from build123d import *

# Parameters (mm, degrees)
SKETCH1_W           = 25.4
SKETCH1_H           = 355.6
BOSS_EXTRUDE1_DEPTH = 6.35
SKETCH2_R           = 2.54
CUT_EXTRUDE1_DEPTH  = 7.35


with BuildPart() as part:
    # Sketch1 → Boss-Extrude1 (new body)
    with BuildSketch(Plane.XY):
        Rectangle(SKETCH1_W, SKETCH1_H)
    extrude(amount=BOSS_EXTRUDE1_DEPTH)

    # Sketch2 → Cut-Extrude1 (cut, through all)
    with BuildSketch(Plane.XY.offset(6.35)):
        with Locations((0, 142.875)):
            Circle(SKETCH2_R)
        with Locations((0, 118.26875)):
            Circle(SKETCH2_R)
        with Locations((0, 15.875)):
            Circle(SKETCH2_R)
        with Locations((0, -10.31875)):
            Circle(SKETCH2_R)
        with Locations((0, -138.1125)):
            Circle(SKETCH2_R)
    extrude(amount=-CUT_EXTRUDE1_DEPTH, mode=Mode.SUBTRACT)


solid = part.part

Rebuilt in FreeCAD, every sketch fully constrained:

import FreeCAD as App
import Part
import Sketcher
Q = App.Units.Quantity

doc = App.newDocument("Part")
params = doc.addObject("Spreadsheet::Sheet", "Params")
for row, (alias, value) in enumerate([
    ("sketch1_width", "1 in"),
    ("sketch1_height", "14 in"),
    ("pad1_length", "0.25 in"),
    ("sketch2_diameter", "0.2 in"),
], start=1):
    params.set(f"A{row}", alias)
    params.set(f"B{row}", "=" + value)
    params.setAlias(f"B{row}", alias)

body = doc.addObject("PartDesign::Body", "Body")

# Sketch on XY plane
sketch1 = body.newObject("Sketcher::SketchObject", "Sketch")
sketch1.AttachmentSupport = (doc.getObject("XY_Plane"), [""])
sketch1.MapMode = "FlatFace"
sketch1.addGeometry([
    Part.LineSegment(App.Vector(-13, 178, 0), App.Vector(-13, -178, 0)),
    Part.LineSegment(App.Vector(-13, -178, 0), App.Vector(13, -178, 0)),
    Part.LineSegment(App.Vector(13, -178, 0), App.Vector(13, 178, 0)),
    Part.LineSegment(App.Vector(13, 178, 0), App.Vector(-13, 178, 0)),
], False)
sketch1.addConstraint([
    Sketcher.Constraint("Coincident", 0, 2, 1, 1),
    Sketcher.Constraint("Coincident", 1, 2, 2, 1),
    Sketcher.Constraint("Coincident", 2, 2, 3, 1),
    Sketcher.Constraint("Coincident", 3, 2, 0, 1),
    Sketcher.Constraint("Vertical", 0),
    Sketcher.Constraint("Horizontal", 1),
    Sketcher.Constraint("Vertical", 2),
    Sketcher.Constraint("Horizontal", 3),
    Sketcher.Constraint("Symmetric", 0, 2, 2, 2, -1, 1),
    Sketcher.Constraint("DistanceX", 1, 1, 1, 2, Q("1 in")),
    Sketcher.Constraint("DistanceY", 0, 2, 0, 1, Q("14 in")),
])
sketch1.setExpression("Constraints[9]", "Params.sketch1_width")
sketch1.setExpression("Constraints[10]", "Params.sketch1_height")
pad1 = body.newObject("PartDesign::Pad", "Pad")
pad1.Profile = sketch1
pad1.setExpression("Length", "Params.pad1_length")

# Sketch on XY plane
sketch2 = body.newObject("Sketcher::SketchObject", "Sketch001")
sketch2.AttachmentSupport = (doc.getObject("XY_Plane"), [""])
sketch2.MapMode = "FlatFace"
sketch2.AttachmentOffset = App.Placement(App.Vector(0, 0, 0.25 * 25.4), App.Rotation())
sketch2.addGeometry([
    Part.Circle(App.Vector(0, 142.9, 0), App.Vector(0, 0, 1), 2.5),  # 0
    Part.Circle(App.Vector(0, 118.3, 0), App.Vector(0, 0, 1), 2.5),  # 1
    Part.Circle(App.Vector(0, 15.9, 0), App.Vector(0, 0, 1), 2.5),  # 2
    Part.Circle(App.Vector(0, -10.3, 0), App.Vector(0, 0, 1), 2.5),  # 3
    Part.Circle(App.Vector(0, -138.1, 0), App.Vector(0, 0, 1), 2.5),  # 4
], False)
sketch2.addConstraint([
    Sketcher.Constraint("Equal", 0, 1),
    Sketcher.Constraint("Equal", 1, 2),
    Sketcher.Constraint("Equal", 2, 3),
    Sketcher.Constraint("Equal", 3, 4),
    Sketcher.Constraint("PointOnObject", 0, 3, -2),
    Sketcher.Constraint("PointOnObject", 1, 3, -2),
    Sketcher.Constraint("PointOnObject", 2, 3, -2),
    Sketcher.Constraint("PointOnObject", 3, 3, -2),
    Sketcher.Constraint("PointOnObject", 4, 3, -2),
    Sketcher.Constraint("Diameter", 0, Q("0.2 in")),
    Sketcher.Constraint("DistanceY", 2, 3, 0, 3, Q("5 in")),
    Sketcher.Constraint("DistanceY", -1, 1, 0, 3, Q("5.625 in")),
    Sketcher.Constraint("DistanceY", -1, 1, 1, 3, Q("4.65625 in")),
    Sketcher.Constraint("DistanceY", 3, 3, -1, 1, Q("0.40625 in")),
    Sketcher.Constraint("DistanceY", 4, 3, -1, 1, Q("5.4375 in")),
])
sketch2.setExpression("Constraints[9]", "Params.sketch2_diameter")
pocket1 = body.newObject("PartDesign::Pocket", "Pocket")
pocket1.Profile = sketch2
pocket1.Type = "ThroughAll"

doc.recompute()
